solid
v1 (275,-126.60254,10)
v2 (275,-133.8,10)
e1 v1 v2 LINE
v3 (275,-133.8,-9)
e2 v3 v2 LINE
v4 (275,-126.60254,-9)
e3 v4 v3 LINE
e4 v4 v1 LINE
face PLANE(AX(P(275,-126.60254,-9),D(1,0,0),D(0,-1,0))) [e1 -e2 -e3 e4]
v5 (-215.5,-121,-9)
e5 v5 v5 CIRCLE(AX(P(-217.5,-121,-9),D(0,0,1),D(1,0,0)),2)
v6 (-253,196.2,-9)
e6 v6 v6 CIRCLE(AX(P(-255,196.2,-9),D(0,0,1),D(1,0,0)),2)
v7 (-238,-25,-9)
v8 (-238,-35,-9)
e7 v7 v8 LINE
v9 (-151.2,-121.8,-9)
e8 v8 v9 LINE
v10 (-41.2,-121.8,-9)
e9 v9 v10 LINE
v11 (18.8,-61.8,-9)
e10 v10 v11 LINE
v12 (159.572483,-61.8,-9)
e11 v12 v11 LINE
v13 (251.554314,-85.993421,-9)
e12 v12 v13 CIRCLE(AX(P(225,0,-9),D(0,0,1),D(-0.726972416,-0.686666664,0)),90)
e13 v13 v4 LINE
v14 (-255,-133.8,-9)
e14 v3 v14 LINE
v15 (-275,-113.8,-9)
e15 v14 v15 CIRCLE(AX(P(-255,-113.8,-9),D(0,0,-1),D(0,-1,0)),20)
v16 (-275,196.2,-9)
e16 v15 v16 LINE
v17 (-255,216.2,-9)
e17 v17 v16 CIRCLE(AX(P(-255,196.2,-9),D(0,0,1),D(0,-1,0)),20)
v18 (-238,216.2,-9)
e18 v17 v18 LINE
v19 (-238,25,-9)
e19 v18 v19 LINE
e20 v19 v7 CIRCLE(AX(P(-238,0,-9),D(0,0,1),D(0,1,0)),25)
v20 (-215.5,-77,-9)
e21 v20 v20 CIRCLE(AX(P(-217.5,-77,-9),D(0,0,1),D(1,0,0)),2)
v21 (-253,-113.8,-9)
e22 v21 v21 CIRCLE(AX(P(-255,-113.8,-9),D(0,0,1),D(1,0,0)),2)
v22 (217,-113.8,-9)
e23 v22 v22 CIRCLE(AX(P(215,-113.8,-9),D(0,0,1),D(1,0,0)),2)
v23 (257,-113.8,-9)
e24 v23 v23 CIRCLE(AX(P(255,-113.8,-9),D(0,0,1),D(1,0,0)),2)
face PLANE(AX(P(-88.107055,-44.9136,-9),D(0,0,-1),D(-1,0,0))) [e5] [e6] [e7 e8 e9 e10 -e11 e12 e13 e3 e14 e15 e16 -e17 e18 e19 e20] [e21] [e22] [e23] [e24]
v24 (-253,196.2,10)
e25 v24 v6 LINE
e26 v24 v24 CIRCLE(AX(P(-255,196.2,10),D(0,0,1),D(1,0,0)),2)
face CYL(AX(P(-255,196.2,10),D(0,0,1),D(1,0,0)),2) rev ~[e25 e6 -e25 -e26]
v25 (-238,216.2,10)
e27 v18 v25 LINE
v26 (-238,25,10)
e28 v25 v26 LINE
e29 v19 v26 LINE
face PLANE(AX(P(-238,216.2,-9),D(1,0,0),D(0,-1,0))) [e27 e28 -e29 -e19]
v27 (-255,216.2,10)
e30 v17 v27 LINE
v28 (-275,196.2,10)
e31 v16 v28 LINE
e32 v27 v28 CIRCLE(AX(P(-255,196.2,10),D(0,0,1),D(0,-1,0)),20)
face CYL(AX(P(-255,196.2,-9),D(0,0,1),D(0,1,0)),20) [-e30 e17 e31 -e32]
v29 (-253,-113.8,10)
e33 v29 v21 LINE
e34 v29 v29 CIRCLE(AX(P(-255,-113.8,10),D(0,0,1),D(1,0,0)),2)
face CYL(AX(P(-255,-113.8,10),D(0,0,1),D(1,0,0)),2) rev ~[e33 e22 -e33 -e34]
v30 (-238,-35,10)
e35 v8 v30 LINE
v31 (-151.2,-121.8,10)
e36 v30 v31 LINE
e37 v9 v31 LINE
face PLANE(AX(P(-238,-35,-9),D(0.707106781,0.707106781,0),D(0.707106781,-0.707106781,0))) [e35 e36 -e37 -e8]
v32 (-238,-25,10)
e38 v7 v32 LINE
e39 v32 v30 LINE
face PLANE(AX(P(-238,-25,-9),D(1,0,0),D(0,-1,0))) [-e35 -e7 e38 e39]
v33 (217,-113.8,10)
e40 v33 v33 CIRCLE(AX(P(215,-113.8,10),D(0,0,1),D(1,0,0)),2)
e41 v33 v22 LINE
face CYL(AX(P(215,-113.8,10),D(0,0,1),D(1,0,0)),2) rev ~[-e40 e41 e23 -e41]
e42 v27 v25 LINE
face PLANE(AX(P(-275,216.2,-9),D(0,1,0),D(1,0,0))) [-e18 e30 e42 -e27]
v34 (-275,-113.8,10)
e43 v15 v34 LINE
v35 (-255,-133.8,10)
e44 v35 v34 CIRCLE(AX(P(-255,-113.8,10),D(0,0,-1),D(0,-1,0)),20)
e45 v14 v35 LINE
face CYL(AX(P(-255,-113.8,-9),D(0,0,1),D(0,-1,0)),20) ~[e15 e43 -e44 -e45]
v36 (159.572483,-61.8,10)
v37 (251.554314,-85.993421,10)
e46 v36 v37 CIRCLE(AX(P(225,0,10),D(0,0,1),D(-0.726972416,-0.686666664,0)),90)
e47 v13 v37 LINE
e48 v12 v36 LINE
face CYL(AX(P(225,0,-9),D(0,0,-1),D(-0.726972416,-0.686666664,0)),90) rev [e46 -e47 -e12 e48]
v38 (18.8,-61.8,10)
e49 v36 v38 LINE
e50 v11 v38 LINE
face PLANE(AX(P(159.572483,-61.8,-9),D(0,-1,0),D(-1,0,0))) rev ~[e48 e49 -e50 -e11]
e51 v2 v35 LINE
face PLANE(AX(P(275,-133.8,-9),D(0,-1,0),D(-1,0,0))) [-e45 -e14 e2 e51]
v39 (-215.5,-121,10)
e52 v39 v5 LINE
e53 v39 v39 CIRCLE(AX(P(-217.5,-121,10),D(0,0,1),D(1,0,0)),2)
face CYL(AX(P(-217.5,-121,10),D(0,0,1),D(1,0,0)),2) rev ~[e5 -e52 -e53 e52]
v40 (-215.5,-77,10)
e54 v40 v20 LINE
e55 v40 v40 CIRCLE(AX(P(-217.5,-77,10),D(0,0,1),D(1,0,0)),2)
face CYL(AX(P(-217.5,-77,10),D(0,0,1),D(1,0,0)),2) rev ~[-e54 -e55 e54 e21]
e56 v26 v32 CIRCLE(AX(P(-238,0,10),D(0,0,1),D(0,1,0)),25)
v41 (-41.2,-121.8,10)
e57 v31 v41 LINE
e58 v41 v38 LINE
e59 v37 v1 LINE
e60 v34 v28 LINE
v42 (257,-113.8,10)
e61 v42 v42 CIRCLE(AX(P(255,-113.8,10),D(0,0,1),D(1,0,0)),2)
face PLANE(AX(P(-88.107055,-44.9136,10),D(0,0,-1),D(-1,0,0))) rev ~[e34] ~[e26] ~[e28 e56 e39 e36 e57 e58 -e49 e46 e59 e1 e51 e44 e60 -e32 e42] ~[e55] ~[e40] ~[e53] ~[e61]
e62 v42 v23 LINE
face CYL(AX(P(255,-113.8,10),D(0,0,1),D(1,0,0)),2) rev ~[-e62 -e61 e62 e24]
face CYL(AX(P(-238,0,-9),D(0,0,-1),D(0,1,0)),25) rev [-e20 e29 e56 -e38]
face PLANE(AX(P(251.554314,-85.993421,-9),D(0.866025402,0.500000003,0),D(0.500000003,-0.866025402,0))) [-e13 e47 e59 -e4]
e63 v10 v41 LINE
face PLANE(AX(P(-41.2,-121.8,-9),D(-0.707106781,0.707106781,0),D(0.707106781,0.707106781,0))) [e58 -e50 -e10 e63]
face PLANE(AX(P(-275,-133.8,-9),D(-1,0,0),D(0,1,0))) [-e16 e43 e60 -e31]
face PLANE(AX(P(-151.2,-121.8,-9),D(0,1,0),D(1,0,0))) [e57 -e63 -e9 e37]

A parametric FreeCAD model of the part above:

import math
import FreeCAD as App
import Part
import Sketcher

V = App.Vector
Q = App.Units.Quantity


def edges_at(feature, points):
    """Names of the edges that pass closest to the given points."""
    edges = feature.Shape.Edges
    near = lambda p: min(range(len(edges)), key=lambda i: edges[i].distToShape(Part.Vertex(*p))[0])
    return sorted({f"Edge{near(p) + 1}" for p in points})

doc = App.newDocument("Part")
params = doc.addObject("Spreadsheet::Sheet", "Params")
for row, (alias, value) in enumerate([
    ("sketch1_radius", "90 mm"),
    ("sketch1_radius2", "25 mm"),
    ("sketch1_width", "37 mm"),
    ("sketch1_width2", "550 mm"),
    ("sketch1_width3", "110 mm"),
    ("pad1_length", "19 mm"),
    ("fillet_radius", "20 mm"),
    ("sketch2_diameter", "4 mm"),
    ("sketch3_diameter", "4 mm"),
    ("sketch4_diameter", "4 mm"),
], start=1):
    params.set(f"A{row}", alias)
    params.set(f"B{row}", "=" + value)
    params.setAlias(f"B{row}", alias)

body = doc.addObject("PartDesign::Body", "Body")

sketch1 = body.newObject("Sketcher::SketchObject", "Sketch")
sketch1.AttachmentSupport = (doc.getObject("XY_Plane"), [""])
sketch1.MapMode = "FlatFace"
sketch1.addGeometry(Part.LineSegment(V(-238, 216, 0), V(-275, 216, 0)), False)
sketch1.addGeometry(Part.LineSegment(V(-275, 216, 0), V(-275, -134, 0)), False)
sketch1.addGeometry(Part.LineSegment(V(-275, -134, 0), V(275, -134, 0)), False)
sketch1.addGeometry(Part.LineSegment(V(275, -134, 0), V(275, -127, 0)), False)
sketch1.addGeometry(Part.LineSegment(V(275, -127, 0), V(252, -86, 0)), False)
sketch1.addGeometry(Part.ArcOfCircle(Part.Circle(V(225, 0, 0), V(0, 0, 1), 90), math.radians(-137), math.radians(-73)), False)
sketch1.addGeometry(Part.LineSegment(V(160, -62, 0), V(19, -62, 0)), False)
sketch1.addGeometry(Part.LineSegment(V(19, -62, 0), V(-41, -122, 0)), False)
sketch1.addGeometry(Part.LineSegment(V(-41, -122, 0), V(-151, -122, 0)), False)
sketch1.addGeometry(Part.LineSegment(V(-151, -122, 0), V(-238, -35, 0)), False)
sketch1.addGeometry(Part.LineSegment(V(-238, -35, 0), V(-238, -25, 0)), False)
sketch1.addGeometry(Part.ArcOfCircle(Part.Circle(V(-238, 0, 0), V(0, 0, 1), 25), math.radians(90), math.radians(270)), False)
sketch1.addGeometry(Part.LineSegment(V(-238, 25, 0), V(-238, 216, 0)), False)
sketch1.addConstraint(Sketcher.Constraint("Coincident", 0, 2, 1, 1))
sketch1.addConstraint(Sketcher.Constraint("Coincident", 1, 2, 2, 1))
sketch1.addConstraint(Sketcher.Constraint("Coincident", 2, 2, 3, 1))
sketch1.addConstraint(Sketcher.Constraint("Coincident", 3, 2, 4, 1))
sketch1.addConstraint(Sketcher.Constraint("Coincident", 4, 2, 5, 2))
sketch1.addConstraint(Sketcher.Constraint("Coincident", 5, 1, 6, 1))
sketch1.addConstraint(Sketcher.Constraint("Coincident", 6, 2, 7, 1))
sketch1.addConstraint(Sketcher.Constraint("Coincident", 7, 2, 8, 1))
sketch1.addConstraint(Sketcher.Constraint("Coincident", 8, 2, 9, 1))
sketch1.addConstraint(Sketcher.Constraint("Coincident", 9, 2, 10, 1))
sketch1.addConstraint(Sketcher.Constraint("Coincident", 10, 2, 11, 2))
sketch1.addConstraint(Sketcher.Constraint("Coincident", 11, 1, 12, 1))
sketch1.addConstraint(Sketcher.Constraint("Coincident", 12, 2, 0, 1))
sketch1.addConstraint(Sketcher.Constraint("Horizontal", 0))
sketch1.addConstraint(Sketcher.Constraint("Vertical", 1))
sketch1.addConstraint(Sketcher.Constraint("Horizontal", 2))
sketch1.addConstraint(Sketcher.Constraint("Vertical", 3))
sketch1.addConstraint(Sketcher.Constraint("Horizontal", 6))
sketch1.addConstraint(Sketcher.Constraint("Horizontal", 8))
sketch1.addConstraint(Sketcher.Constraint("Vertical", 10))
sketch1.addConstraint(Sketcher.Constraint("Vertical", 12))
sketch1.addConstraint(Sketcher.Constraint("Symmetric", 10, 2, 11, 1, -1))
sketch1.addConstraint(Sketcher.Constraint("PointOnObject", 5, 3, -1))
sketch1.addConstraint(Sketcher.Constraint("Perpendicular", 7, 9))
sketch1.addConstraint(Sketcher.Constraint("Vertical", 11, 3, 9, 2))
sketch1.addConstraint(Sketcher.Constraint("Radius", 5, Q("90 mm")))
sketch1.addConstraint(Sketcher.Constraint("Radius", 11, Q("25 mm")))
sketch1.addConstraint(Sketcher.Constraint("DistanceX", 0, 2, 0, 1, Q("37 mm")))
sketch1.addConstraint(Sketcher.Constraint("DistanceX", 2, 1, 2, 2, Q("550 mm")))
sketch1.addConstraint(Sketcher.Constraint("DistanceX", 8, 2, 8, 1, Q("110 mm")))
sketch1.addConstraint(Sketcher.Constraint("DistanceY", 1, 2, 1, 1, Q("350 mm")))
sketch1.addConstraint(Sketcher.Constraint("DistanceY", 10, 1, 10, 2, Q("10 mm")))
sketch1.addConstraint(Sketcher.Constraint("Angle", 4, Q("120 deg")))
sketch1.addConstraint(Sketcher.Constraint("Angle", 7, Q("-135 deg")))
sketch1.addConstraint(Sketcher.Constraint("DistanceY", 12, 1, 12, 2, Q("191.2 mm")))
sketch1.addConstraint(Sketcher.Constraint("DistanceX", -1, 1, 5, 3, Q("225 mm")))
sketch1.addConstraint(Sketcher.Constraint("DistanceX", 11, 3, -1, 1, Q("238 mm")))
sketch1.addConstraint(Sketcher.Constraint("DistanceY", 2, 2, 5, 1, Q("72 mm")))
sketch1.addConstraint(Sketcher.Constraint("DistanceX", 7, 2, 6, 2, Q("60 mm")))
sketch1.addConstraint(Sketcher.Constraint("DistanceY", 3, 1, 3, 2, Q("7.19746 mm")))
sketch1.setExpression("Constraints[25]", "Params.sketch1_radius")
sketch1.setExpression("Constraints[26]", "Params.sketch1_radius2")
sketch1.setExpression("Constraints[27]", "Params.sketch1_width")
sketch1.setExpression("Constraints[28]", "Params.sketch1_width2")
sketch1.setExpression("Constraints[29]", "Params.sketch1_width3")
pad1 = body.newObject("PartDesign::Pad", "Pad")
pad1.Profile = sketch1
pad1.setExpression("Length", "Params.pad1_length")
doc.recompute()

fillet = body.newObject("PartDesign::Fillet", "Fillet")
fillet.Base = (pad1, edges_at(pad1, [(-275, 216.2, 9.5), (-275, -133.8, 9.5)]))
fillet.setExpression("Radius", "Params.fillet_radius")

sketch2 = body.newObject("Sketcher::SketchObject", "Sketch001")
sketch2.AttachmentSupport = (doc.getObject("XY_Plane"), [""])
sketch2.MapMode = "FlatFace"
sketch2.AttachmentOffset = App.Placement(V(0, 0, 19), App.Rotation())
sketch2.addGeometry(Part.Circle(V(-255, 196.2, 0), V(0, 0, 1), 2), False)
sketch2.addGeometry(Part.Circle(V(-255, -113.8, 0), V(0, 0, 1), 2), False)
sketch2.addGeometry(Part.Circle(V(215, -113.8, 0), V(0, 0, 1), 2), False)
sketch2.addConstraint(Sketcher.Constraint("Equal", 0, 1))
sketch2.addConstraint(Sketcher.Constraint("Equal", 1, 2))
sketch2.addConstraint(Sketcher.Constraint("Horizontal", 1, 3, 2, 3))
sketch2.addConstraint(Sketcher.Constraint("Vertical", 0, 3, 1, 3))
sketch2.addConstraint(Sketcher.Constraint("Diameter", 0, Q("4 mm")))
sketch2.addConstraint(Sketcher.Constraint("DistanceX", 0, 3, -1, 1, Q("255 mm")))
sketch2.addConstraint(Sketcher.Constraint("DistanceX", -1, 1, 2, 3, Q("215 mm")))
sketch2.addConstraint(Sketcher.Constraint("DistanceY", 1, 3, 0, 3, Q("310 mm")))
sketch2.addConstraint(Sketcher.Constraint("DistanceY", -1, 1, 0, 3, Q("196.2 mm")))
sketch2.setExpression("Constraints[4]", "Params.sketch2_diameter")
pocket1 = body.newObject("PartDesign::Pocket", "Pocket")
pocket1.Profile = sketch2
pocket1.Type = "ThroughAll"

sketch3 = body.newObject("Sketcher::SketchObject", "Sketch002")
sketch3.AttachmentSupport = (doc.getObject("XY_Plane"), [""])
sketch3.MapMode = "FlatFace"
sketch3.AttachmentOffset = App.Placement(V(0, 0, 19), App.Rotation())
sketch3.addGeometry(Part.Circle(V(255, -113.8, 0), V(0, 0, 1), 2), False)
sketch3.addConstraint(Sketcher.Constraint("Diameter", 0, Q("4 mm")))
sketch3.addConstraint(Sketcher.Constraint("DistanceX", -1, 1, 0, 3, Q("255 mm")))
sketch3.addConstraint(Sketcher.Constraint("DistanceY", 0, 3, -1, 1, Q("113.8 mm")))
sketch3.setExpression("Constraints[0]", "Params.sketch3_diameter")
pocket2 = body.newObject("PartDesign::Pocket", "Pocket001")
pocket2.Profile = sketch3
pocket2.Type = "ThroughAll"

sketch4 = body.newObject("Sketcher::SketchObject", "Sketch003")
sketch4.AttachmentSupport = (doc.getObject("XY_Plane"), [""])
sketch4.MapMode = "FlatFace"
sketch4.AttachmentOffset = App.Placement(V(0, 0, 19), App.Rotation())
sketch4.addGeometry(Part.Circle(V(-217.5, -77, 0), V(0, 0, 1), 2), False)
sketch4.addGeometry(Part.Circle(V(-217.5, -121, 0), V(0, 0, 1), 2), False)
sketch4.addConstraint(Sketcher.Constraint("Equal", 0, 1))
sketch4.addConstraint(Sketcher.Constraint("Vertical", 0, 3, 1, 3))
sketch4.addConstraint(Sketcher.Constraint("Diameter", 0, Q("4 mm")))
sketch4.addConstraint(Sketcher.Constraint("DistanceY", 0, 3, -1, 1, Q("77 mm")))
sketch4.addConstraint(Sketcher.Constraint("DistanceY", 1, 3, -1, 1, Q("121 mm")))
sketch4.addConstraint(Sketcher.Constraint("DistanceX", 0, 3, -1, 1, Q("217.5 mm")))
sketch4.setExpression("Constraints[2]", "Params.sketch4_diameter")
pocket3 = body.newObject("PartDesign::Pocket", "Pocket002")
pocket3.Profile = sketch4
pocket3.Type = "ThroughAll"
body2 = doc.addObject("PartDesign::Body", "Body001")
doc.recompute()

body.Placement = App.Placement(V(0, 0, -9), App.Rotation(V(0, 0, 1), 0))
boolean = body2.newObject("PartDesign::Boolean", "Boolean")
boolean.Type = "Fuse"
boolean.addObjects([body])

doc.recompute()
